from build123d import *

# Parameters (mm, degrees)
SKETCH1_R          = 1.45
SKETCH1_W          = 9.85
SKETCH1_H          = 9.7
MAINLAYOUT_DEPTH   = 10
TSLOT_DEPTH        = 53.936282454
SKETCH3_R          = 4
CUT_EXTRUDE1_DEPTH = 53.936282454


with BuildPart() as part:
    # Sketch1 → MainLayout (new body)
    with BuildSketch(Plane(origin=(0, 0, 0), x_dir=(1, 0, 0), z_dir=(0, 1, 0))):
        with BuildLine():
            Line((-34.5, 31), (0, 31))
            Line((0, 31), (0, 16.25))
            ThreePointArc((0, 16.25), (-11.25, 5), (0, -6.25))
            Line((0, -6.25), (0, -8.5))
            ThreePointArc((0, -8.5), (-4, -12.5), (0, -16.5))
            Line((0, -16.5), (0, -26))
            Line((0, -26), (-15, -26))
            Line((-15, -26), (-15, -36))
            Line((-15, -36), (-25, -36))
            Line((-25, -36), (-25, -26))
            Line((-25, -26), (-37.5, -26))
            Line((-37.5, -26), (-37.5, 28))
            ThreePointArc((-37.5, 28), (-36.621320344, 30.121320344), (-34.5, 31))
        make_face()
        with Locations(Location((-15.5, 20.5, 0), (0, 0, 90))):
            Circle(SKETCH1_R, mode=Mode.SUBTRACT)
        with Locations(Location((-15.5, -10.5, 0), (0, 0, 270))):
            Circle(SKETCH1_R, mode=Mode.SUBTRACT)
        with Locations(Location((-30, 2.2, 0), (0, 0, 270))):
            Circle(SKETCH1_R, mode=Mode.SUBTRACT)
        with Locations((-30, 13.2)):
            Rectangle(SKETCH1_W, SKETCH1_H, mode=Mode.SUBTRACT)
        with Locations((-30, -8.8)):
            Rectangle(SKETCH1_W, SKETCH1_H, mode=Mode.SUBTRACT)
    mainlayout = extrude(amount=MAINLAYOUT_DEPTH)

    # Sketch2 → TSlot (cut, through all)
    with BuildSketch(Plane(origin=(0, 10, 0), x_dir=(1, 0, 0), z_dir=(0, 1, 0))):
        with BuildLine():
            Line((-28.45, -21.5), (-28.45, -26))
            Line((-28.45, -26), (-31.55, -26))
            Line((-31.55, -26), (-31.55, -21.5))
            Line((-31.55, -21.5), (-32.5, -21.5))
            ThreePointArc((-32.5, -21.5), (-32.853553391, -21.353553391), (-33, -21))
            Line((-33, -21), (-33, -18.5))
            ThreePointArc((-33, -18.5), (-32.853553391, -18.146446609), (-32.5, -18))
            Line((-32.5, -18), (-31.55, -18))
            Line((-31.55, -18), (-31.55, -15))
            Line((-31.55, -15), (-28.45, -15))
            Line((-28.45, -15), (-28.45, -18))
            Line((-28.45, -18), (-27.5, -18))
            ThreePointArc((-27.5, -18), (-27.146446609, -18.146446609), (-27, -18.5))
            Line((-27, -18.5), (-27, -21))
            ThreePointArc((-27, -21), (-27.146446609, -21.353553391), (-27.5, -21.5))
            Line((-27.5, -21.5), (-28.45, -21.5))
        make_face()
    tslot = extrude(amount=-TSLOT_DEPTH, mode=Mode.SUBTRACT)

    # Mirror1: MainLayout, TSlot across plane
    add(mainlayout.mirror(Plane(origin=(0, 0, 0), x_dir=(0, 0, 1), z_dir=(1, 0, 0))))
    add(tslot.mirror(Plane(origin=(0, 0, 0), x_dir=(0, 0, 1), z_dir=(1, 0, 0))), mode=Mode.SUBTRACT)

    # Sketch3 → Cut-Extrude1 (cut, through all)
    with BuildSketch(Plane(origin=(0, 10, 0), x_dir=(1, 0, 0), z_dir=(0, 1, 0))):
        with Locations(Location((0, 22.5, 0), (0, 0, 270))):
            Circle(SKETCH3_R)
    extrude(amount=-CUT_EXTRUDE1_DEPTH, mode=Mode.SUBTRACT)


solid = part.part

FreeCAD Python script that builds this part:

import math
import FreeCAD as App
import Part
import Sketcher

V = App.Vector


def add_polygon(sketch, points):
    """Adds a closed chain of lines whose ends are joined by coincident constraints."""
    first, n = sketch.GeometryCount, len(points)
    for a, b in zip(points, points[1:] + points[:1]):
        sketch.addGeometry(Part.LineSegment(App.Vector(*a, 0), App.Vector(*b, 0)), False)
    for i in range(n):
        sketch.addConstraint(Sketcher.Constraint("Coincident", first + i, 2, first + (i + 1) % n, 1))

doc = App.newDocument("Part")
body = doc.addObject("PartDesign::Body", "Body")

sketch1 = doc.addObject("Sketcher::SketchObject", "Sketch")
body.addObject(sketch1)
sketch1.AttachmentSupport = (doc.XZ_Plane, [""])
sketch1.MapMode = "FlatFace"
sketch1.addGeometry(Part.LineSegment(V(0, -31, 0), V(-34.5, -31, 0)), False)
sketch1.addGeometry(Part.ArcOfCircle(Part.Circle(V(-34.5, -28, 0), V(0, 0, 1), 3), math.radians(180), math.radians(270)), False)
sketch1.addGeometry(Part.LineSegment(V(-37.5, -28, 0), V(-37.5, 26, 0)), False)
sketch1.addGeometry(Part.LineSegment(V(-37.5, 26, 0), V(-25, 26, 0)), False)
sketch1.addGeometry(Part.LineSegment(V(-25, 26, 0), V(-25, 36, 0)), False)
sketch1.addGeometry(Part.LineSegment(V(-25, 36, 0), V(-15, 36, 0)), False)
sketch1.addGeometry(Part.LineSegment(V(-15, 36, 0), V(-15, 26, 0)), False)
sketch1.addGeometry(Part.LineSegment(V(-15, 26, 0), V(0, 26, 0)), False)
sketch1.addGeometry(Part.LineSegment(V(0, 26, 0), V(0, 16.5, 0)), False)
sketch1.addGeometry(Part.ArcOfCircle(Part.Circle(V(0, 12.5, 0), V(0, 0, 1), 4), math.radians(90), math.radians(270)), False)
sketch1.addGeometry(Part.LineSegment(V(0, 8.5, 0), V(0, 6.2, 0)), False)
sketch1.addGeometry(Part.ArcOfCircle(Part.Circle(V(0, -5, 0), V(0, 0, 1), 11.2), math.radians(90), math.radians(270)), False)
sketch1.addGeometry(Part.LineSegment(V(0, -16.2, 0), V(0, -31, 0)), False)
sketch1.addGeometry(Part.Circle(V(-15.5, 10.5, 0), V(0, 0, 1), 1.4), False)
add_polygon(sketch1, [(-34.9, 13.7), (-34.9, 4), (-25.1, 4), (-25.1, 13.7)])
sketch1.addGeometry(Part.Circle(V(-30, -2.2, 0), V(0, 0, 1), 1.4), False)
sketch1.addGeometry(Part.Circle(V(-15.5, -20.5, 0), V(0, 0, 1), 1.4), False)
add_polygon(sketch1, [(-34.9, -8.3), (-34.9, -18.1), (-25.1, -18.1), (-25.1, -8.3)])
sketch1.addConstraint([
    Sketcher.Constraint("Tangent", 0, 2, 1, 2),
    Sketcher.Constraint("Tangent", 1, 1, 2, 1),
    Sketcher.Constraint("Coincident", 2, 2, 3, 1),
    Sketcher.Constraint("Coincident", 3, 2, 4, 1),
    Sketcher.Constraint("Coincident", 4, 2, 5, 1),
    Sketcher.Constraint("Coincident", 5, 2, 6, 1),
    Sketcher.Constraint("Coincident", 6, 2, 7, 1),
    Sketcher.Constraint("Coincident", 7, 2, 8, 1),
    Sketcher.Constraint("Coincident", 8, 2, 9, 1),
    Sketcher.Constraint("Coincident", 9, 2, 10, 1),
    Sketcher.Constraint("Coincident", 10, 2, 11, 1),
    Sketcher.Constraint("Coincident", 11, 2, 12, 1),
    Sketcher.Constraint("Coincident", 12, 2, 0, 1),
    Sketcher.Constraint("Horizontal", 0),
    Sketcher.Constraint("Vertical", 2),
    Sketcher.Constraint("Horizontal", 3),
    Sketcher.Constraint("Vertical", 4),
    Sketcher.Constraint("Horizontal", 5),
    Sketcher.Constraint("Vertical", 6),
    Sketcher.Constraint("Horizontal", 7),
    Sketcher.Constraint("Vertical", 8),
    Sketcher.Constraint("Vertical", 10),
    Sketcher.Constraint("Vertical", 12),
    Sketcher.Constraint("Vertical", 14),
    Sketcher.Constraint("Horizontal", 15),
    Sketcher.Constraint("Vertical", 16),
    Sketcher.Constraint("Horizontal", 17),
    Sketcher.Constraint("Vertical", 20),
    Sketcher.Constraint("Horizontal", 21),
    Sketcher.Constraint("Vertical", 22),
    Sketcher.Constraint("Horizontal", 23),
    Sketcher.Constraint("Equal", 13, 18),
    Sketcher.Constraint("Equal", 18, 19),
    Sketcher.Constraint("PointOnObject", 9, 3, -2),
    Sketcher.Constraint("PointOnObject", 11, 3, -2),
    Sketcher.Constraint("PointOnObject", 7, 2, -2),
    Sketcher.Constraint("PointOnObject", 9, 2, -2),
    Sketcher.Constraint("PointOnObject", 11, 2, -2),
    Sketcher.Constraint("Horizontal", 3, 2, 6, 2),
    Sketcher.Constraint("Vertical", 13, 3, 19, 3),
    Sketcher.Constraint("Vertical", 17, 2, 20, 2),
    Sketcher.Constraint("Vertical", 16, 2, 21, 2),
    Sketcher.Constraint("Equal", 5, 4),
    Sketcher.Constraint("Equal", 16, 20),
    Sketcher.Constraint("Radius", 1, 3.0),
    Sketcher.Constraint("Radius", 9, 4.0),
    Sketcher.Constraint("Diameter", 13, 2.9),
    Sketcher.Constraint("DistanceX", 5, 1, 5, 2, 10.0),
    Sketcher.Constraint("DistanceX", 7, 1, 7, 2, 15.0),
    Sketcher.Constraint("DistanceY", 2, 1, 2, 2, 54.0),
    Sketcher.Constraint("Radius", 11, 11.25),
    Sketcher.Constraint("DistanceX", 0, 2, 0, 1, 34.5),
    Sketcher.Constraint("DistanceY", 8, 2, 8, 1, 9.5),
    Sketcher.Constraint("DistanceY", 14, 2, 14, 1, 9.7),
    Sketcher.Constraint("DistanceY", 1, 3, -1, 1, 28.0),
    Sketcher.Constraint("DistanceY", 11, 3, -1, 1, 5.0),
    Sketcher.Constraint("DistanceX", 18, 3, -1, 1, 30.0),
    Sketcher.Constraint("DistanceY", 13, 3, 9, 3, 2.0),
    Sketcher.Constraint("DistanceX", 1, 3, 13, 3, 19.0),
    Sketcher.Constraint("DistanceY", 19, 3, 13, 3, 31.0),
    Sketcher.Constraint("DistanceX", 15, 1, 15, 2, 9.85),
    Sketcher.Constraint("DistanceY", 18, 3, -1, 1, 2.2),
    Sketcher.Constraint("DistanceY", 22, 2, 15, 2, 12.3),
    Sketcher.Constraint("DistanceY", -1, 1, 14, 2, 3.95),
    Sketcher.Constraint("DistanceX", 14, 2, -1, 1, 34.925),
])
pad1 = doc.addObject("PartDesign::Pad", "Pad")
body.addObject(pad1)
pad1.Profile = sketch1
pad1.Length = 10
pad1.Reversed = True

sketch2 = doc.addObject("Sketcher::SketchObject", "Sketch001")
body.addObject(sketch2)
sketch2.AttachmentSupport = (doc.XZ_Plane, [""])
sketch2.MapMode = "FlatFace"
sketch2.AttachmentOffset = App.Placement(V(0, 0, -10), App.Rotation())
sketch2.addGeometry([
    Part.LineSegment(V(-28.45, 26, 0), V(-28.45, 21.5, 0)),
    Part.LineSegment(V(-28.45, 21.5, 0), V(-27.5, 21.5, 0)),
    Part.ArcOfCircle(Part.Circle(V(-27.5, 21, 0), V(0, 0, 1), 0.5), math.radians(0), math.radians(90)),
    Part.LineSegment(V(-27, 21, 0), V(-27, 18.5, 0)),
    Part.ArcOfCircle(Part.Circle(V(-27.5, 18.5, 0), V(0, 0, 1), 0.5), math.radians(-90), math.radians(0)),
    Part.LineSegment(V(-27.5, 18, 0), V(-28.45, 18, 0)),
    Part.LineSegment(V(-28.45, 18, 0), V(-28.45, 15, 0)),
    Part.LineSegment(V(-28.45, 15, 0), V(-31.55, 15, 0)),
    Part.LineSegment(V(-31.55, 15, 0), V(-31.55, 18, 0)),
    Part.LineSegment(V(-31.55, 18, 0), V(-32.5, 18, 0)),
    Part.ArcOfCircle(Part.Circle(V(-32.5, 18.5, 0), V(0, 0, 1), 0.5), math.radians(180), math.radians(270)),
    Part.LineSegment(V(-33, 18.5, 0), V(-33, 21, 0)),
    Part.ArcOfCircle(Part.Circle(V(-32.5, 21, 0), V(0, 0, 1), 0.5), math.radians(90), math.radians(180)),
    Part.LineSegment(V(-32.5, 21.5, 0), V(-31.55, 21.5, 0)),
    Part.LineSegment(V(-31.55, 21.5, 0), V(-31.55, 26, 0)),
    Part.LineSegment(V(-31.55, 26, 0), V(-28.45, 26, 0)),
], False)
sketch2.addConstraint([
    Sketcher.Constraint("Coincident", 0, 2, 1, 1),
    Sketcher.Constraint("Tangent", 1, 2, 2, 2),
    Sketcher.Constraint("Tangent", 2, 1, 3, 1),
    Sketcher.Constraint("Tangent", 3, 2, 4, 2),
    Sketcher.Constraint("Tangent", 4, 1, 5, 1),
    Sketcher.Constraint("Coincident", 5, 2, 6, 1),
    Sketcher.Constraint("Coincident", 6, 2, 7, 1),
    Sketcher.Constraint("Coincident", 7, 2, 8, 1),
    Sketcher.Constraint("Coincident", 8, 2, 9, 1),
    Sketcher.Constraint("Tangent", 9, 2, 10, 2),
    Sketcher.Constraint("Tangent", 10, 1, 11, 1),
    Sketcher.Constraint("Tangent", 11, 2, 12, 2),
    Sketcher.Constraint("Tangent", 12, 1, 13, 1),
    Sketcher.Constraint("Coincident", 13, 2, 14, 1),
    Sketcher.Constraint("Coincident", 14, 2, 15, 1),
    Sketcher.Constraint("Coincident", 15, 2, 0, 1),
    Sketcher.Constraint("Vertical", 0),
    Sketcher.Constraint("Horizontal", 1),
    Sketcher.Constraint("Vertical", 3),
    Sketcher.Constraint("Horizontal", 5),
    Sketcher.Constraint("Vertical", 6),
    Sketcher.Constraint("Horizontal", 7),
    Sketcher.Constraint("Vertical", 8),
    Sketcher.Constraint("Horizontal", 9),
    Sketcher.Constraint("Vertical", 11),
    Sketcher.Constraint("Horizontal", 13),
    Sketcher.Constraint("Vertical", 14),
    Sketcher.Constraint("Horizontal", 15),
    Sketcher.Constraint("Equal", 2, 4),
    Sketcher.Constraint("Equal", 4, 10),
    Sketcher.Constraint("Equal", 10, 12),
    Sketcher.Constraint("Horizontal", 4, 3, 10, 3),
    Sketcher.Constraint("Horizontal", 2, 3, 12, 3),
    Sketcher.Constraint("Vertical", 0, 2, 5, 2),
    Sketcher.Constraint("Vertical", 8, 2, 13, 2),
    Sketcher.Constraint("Equal", 5, 9),
    Sketcher.Constraint("Radius", 2, 0.5),
    Sketcher.Constraint("DistanceY", 6, 2, 6, 1, 3.0),
    Sketcher.Constraint("DistanceX", 7, 2, 7, 1, 3.1),
    Sketcher.Constraint("DistanceY", 0, 2, 0, 1, 4.5),
    Sketcher.Constraint("DistanceY", 3, 2, 3, 1, 2.5),
    Sketcher.Constraint("DistanceY", -1, 1, 2, 3, 21.0),
    Sketcher.Constraint("DistanceX", 2, 1, -1, 1, 27.0),
    Sketcher.Constraint("DistanceX", 10, 1, -1, 1, 33.0),
])
pocket1 = doc.addObject("PartDesign::Pocket", "Pocket")
body.addObject(pocket1)
pocket1.Profile = sketch2
pocket1.Type = "ThroughAll"
pocket1.Reversed = True
doc.recompute()

mirrored = doc.addObject("PartDesign::Mirrored", "Mirrored")
body.addObject(mirrored)
mirrored.Originals = [pad1, pocket1]
mirrored.MirrorPlane = (doc.YZ_Plane, [""])
body.Tip = mirrored

sketch3 = doc.addObject("Sketcher::SketchObject", "Sketch002")
body.addObject(sketch3)
sketch3.AttachmentSupport = (doc.XZ_Plane, [""])
sketch3.MapMode = "FlatFace"
sketch3.AttachmentOffset = App.Placement(V(0, 0, -10), App.Rotation())
sketch3.addGeometry(Part.Circle(V(0, -22.5, 0), V(0, 0, 1), 4), False)
sketch3.addConstraint([
    Sketcher.Constraint("PointOnObject", 0, 3, -2),
    Sketcher.Constraint("Diameter", 0, 8.0),
    Sketcher.Constraint("DistanceY", 0, 3, -1, 1, 22.5),
])
pocket2 = doc.addObject("PartDesign::Pocket", "Pocket001")
body.addObject(pocket2)
pocket2.Profile = sketch3
pocket2.Type = "ThroughAll"
pocket2.Reversed = True

doc.recompute()
